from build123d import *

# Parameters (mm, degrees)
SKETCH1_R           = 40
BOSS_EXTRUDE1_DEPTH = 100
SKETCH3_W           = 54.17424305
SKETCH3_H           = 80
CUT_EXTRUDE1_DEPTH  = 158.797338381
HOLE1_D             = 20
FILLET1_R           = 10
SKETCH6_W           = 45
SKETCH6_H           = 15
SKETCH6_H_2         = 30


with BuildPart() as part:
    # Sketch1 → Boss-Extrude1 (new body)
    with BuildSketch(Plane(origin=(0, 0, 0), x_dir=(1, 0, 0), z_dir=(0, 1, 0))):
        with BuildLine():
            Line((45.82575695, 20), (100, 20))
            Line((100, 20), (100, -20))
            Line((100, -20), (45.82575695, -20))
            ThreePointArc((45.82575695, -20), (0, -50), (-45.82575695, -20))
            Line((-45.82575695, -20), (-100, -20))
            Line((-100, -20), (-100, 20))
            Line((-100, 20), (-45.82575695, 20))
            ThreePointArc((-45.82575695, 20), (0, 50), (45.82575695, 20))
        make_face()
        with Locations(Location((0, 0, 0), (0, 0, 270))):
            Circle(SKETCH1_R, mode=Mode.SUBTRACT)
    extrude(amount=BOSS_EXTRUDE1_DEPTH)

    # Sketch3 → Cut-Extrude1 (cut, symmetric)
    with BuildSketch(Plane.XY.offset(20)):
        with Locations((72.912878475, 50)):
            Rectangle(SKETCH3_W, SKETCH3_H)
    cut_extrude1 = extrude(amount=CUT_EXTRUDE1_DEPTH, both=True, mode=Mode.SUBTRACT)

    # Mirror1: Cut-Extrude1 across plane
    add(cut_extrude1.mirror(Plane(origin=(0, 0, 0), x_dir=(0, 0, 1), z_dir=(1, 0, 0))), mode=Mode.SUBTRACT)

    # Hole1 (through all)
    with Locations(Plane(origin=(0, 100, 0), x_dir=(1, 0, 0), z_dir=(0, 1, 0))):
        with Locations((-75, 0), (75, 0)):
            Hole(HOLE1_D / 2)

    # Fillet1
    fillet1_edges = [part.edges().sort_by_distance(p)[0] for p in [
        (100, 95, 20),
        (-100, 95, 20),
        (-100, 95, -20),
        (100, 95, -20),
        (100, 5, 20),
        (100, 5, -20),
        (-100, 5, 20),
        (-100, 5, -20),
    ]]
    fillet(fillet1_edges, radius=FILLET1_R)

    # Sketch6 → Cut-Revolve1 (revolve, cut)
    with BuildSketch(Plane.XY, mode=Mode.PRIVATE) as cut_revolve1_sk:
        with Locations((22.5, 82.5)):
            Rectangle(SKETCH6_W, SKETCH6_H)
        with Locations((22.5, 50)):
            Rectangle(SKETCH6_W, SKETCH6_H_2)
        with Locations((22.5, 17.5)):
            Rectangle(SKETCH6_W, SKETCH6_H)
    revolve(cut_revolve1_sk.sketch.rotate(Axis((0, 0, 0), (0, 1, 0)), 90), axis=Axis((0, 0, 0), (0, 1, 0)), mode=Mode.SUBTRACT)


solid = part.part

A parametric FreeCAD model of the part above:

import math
import FreeCAD as App
import Part
import Sketcher


def edges_at(feature, points):
    """Names of the edges that pass closest to the given points."""
    edges = feature.Shape.Edges
    near = lambda p: min(range(len(edges)), key=lambda i: edges[i].distToShape(Part.Vertex(*p))[0])
    return sorted({f"Edge{near(p) + 1}" for p in points})

doc = App.newDocument("Part")
params = doc.addObject("Spreadsheet::Sheet", "Params")
for row, (alias, value) in enumerate([
    ("sketch1_diameter", "80 mm"),
    ("sketch1_radius", "50 mm"),
    ("sketch1_height", "40 mm"),
    ("pad1_length", "100 mm"),
    ("sketch2_height", "80 mm"),
    ("pocket1_length", "317.594677 mm"),
    ("sketch3_diameter", "20 mm"),
    ("hole_diameter", "20 mm"),
    ("fillet_radius", "10 mm"),
    ("sketch4_width", "45 mm"),
    ("sketch4_height", "15 mm"),
    ("sketch4_height2", "30 mm"),
    ("groove_angle", "360 deg"),
], start=1):
    params.set(f"A{row}", alias)
    params.set(f"B{row}", "=" + value)
    params.setAlias(f"B{row}", alias)

body = doc.addObject("PartDesign::Body", "Body")

sketch1 = body.newObject("Sketcher::SketchObject", "Sketch")
sketch1.AttachmentSupport = (doc.getObject("XZ_Plane"), [""])
sketch1.MapMode = "FlatFace"
sketch1.addGeometry([
    Part.LineSegment(App.Vector(100, -20, 0), App.Vector(45.825757, -20, 0)),
    Part.ArcOfCircle(Part.Circle(App.Vector(0, 0, 0), App.Vector(0, 0, 1), 50), math.radians(-156.421822), math.radians(-23.578178)),
    Part.LineSegment(App.Vector(-45.825757, -20, 0), App.Vector(-100, -20, 0)),
    Part.LineSegment(App.Vector(-100, -20, 0), App.Vector(-100, 20, 0)),
    Part.LineSegment(App.Vector(-100, 20, 0), App.Vector(-45.825757, 20, 0)),
    Part.ArcOfCircle(Part.Circle(App.Vector(0, 0, 0), App.Vector(0, 0, 1), 50), math.radians(23.578178), math.radians(156.421822)),
    Part.LineSegment(App.Vector(45.825757, 20, 0), App.Vector(100, 20, 0)),
    Part.LineSegment(App.Vector(100, 20, 0), App.Vector(100, -20, 0)),
    Part.Circle(App.Vector(0, 0, 0), App.Vector(0, 0, 1), 40),
], False)
sketch1.addConstraint([
    Sketcher.Constraint("Coincident", 0, 2, 1, 2),
    Sketcher.Constraint("Coincident", 1, 1, 2, 1),
    Sketcher.Constraint("Coincident", 2, 2, 3, 1),
    Sketcher.Constraint("Coincident", 3, 2, 4, 1),
    Sketcher.Constraint("Coincident", 4, 2, 5, 2),
    Sketcher.Constraint("Coincident", 5, 1, 6, 1),
    Sketcher.Constraint("Coincident", 6, 2, 7, 1),
    Sketcher.Constraint("Coincident", 7, 2, 0, 1),
    Sketcher.Constraint("Horizontal", 0),
    Sketcher.Constraint("Horizontal", 2),
    Sketcher.Constraint("Vertical", 3),
    Sketcher.Constraint("Horizontal", 4),
    Sketcher.Constraint("Horizontal", 6),
    Sketcher.Constraint("Vertical", 7),
    Sketcher.Constraint("Coincident", 1, 3, -1, 1),
    Sketcher.Constraint("Coincident", 5, 3, -1, 1),
    Sketcher.Constraint("Coincident", 8, 3, -1, 1),
    Sketcher.Constraint("Equal", 1, 5),
    Sketcher.Constraint("Symmetric", 2, 2, 6, 2, -1, 1),
    Sketcher.Constraint("Horizontal", 0, 2, 1, 1),
    Sketcher.Constraint("Horizontal", 4, 2, 5, 1),
    Sketcher.Constraint("Diameter", 8, 80.0),
    Sketcher.Constraint("Radius", 1, 50.0),
    Sketcher.Constraint("DistanceY", 3, 1, 3, 2, 40.0),
    Sketcher.Constraint("DistanceX", 2, 2, -1, 1, 100.0),
])
sketch1.setExpression("Constraints[21]", "Params.sketch1_diameter")
sketch1.setExpression("Constraints[22]", "Params.sketch1_radius")
sketch1.setExpression("Constraints[23]", "Params.sketch1_height")
pad1 = body.newObject("PartDesign::Pad", "Pad")
pad1.Profile = sketch1
pad1.setExpression("Length", "Params.pad1_length")
pad1.Reversed = True

sketch2 = body.newObject("Sketcher::SketchObject", "Sketch001")
sketch2.AttachmentSupport = (doc.getObject("XY_Plane"), [""])
sketch2.MapMode = "FlatFace"
sketch2.AttachmentOffset = App.Placement(App.Vector(0, 0, 20), App.Rotation())
sketch2.addGeometry([
    Part.LineSegment(App.Vector(45.825757, 90, 0), App.Vector(45.825757, 10, 0)),
    Part.LineSegment(App.Vector(45.825757, 10, 0), App.Vector(100, 10, 0)),
    Part.LineSegment(App.Vector(100, 10, 0), App.Vector(100, 90, 0)),
    Part.LineSegment(App.Vector(100, 90, 0), App.Vector(45.825757, 90, 0)),
], False)
sketch2.addConstraint([
    Sketcher.Constraint("Coincident", 0, 2, 1, 1),
    Sketcher.Constraint("Coincident", 1, 2, 2, 1),
    Sketcher.Constraint("Coincident", 2, 2, 3, 1),
    Sketcher.Constraint("Coincident", 3, 2, 0, 1),
    Sketcher.Constraint("Vertical", 0),
    Sketcher.Constraint("Horizontal", 1),
    Sketcher.Constraint("Vertical", 2),
    Sketcher.Constraint("Horizontal", 3),
    Sketcher.Constraint("DistanceY", 0, 2, 0, 1, 80.0),
    Sketcher.Constraint("DistanceY", -1, 1, 0, 2, 10.0),
    Sketcher.Constraint("DistanceX", -1, 1, 1, 2, 100.0),
    Sketcher.Constraint("DistanceX", 1, 1, 1, 2, 54.174243),
])
sketch2.setExpression("Constraints[8]", "Params.sketch2_height")
pocket1 = body.newObject("PartDesign::Pocket", "Pocket")
pocket1.Profile = sketch2
pocket1.setExpression("Length", "Params.pocket1_length")
pocket1.Midplane = True
doc.recompute()

mirrored = body.newObject("PartDesign::Mirrored", "Mirrored")
mirrored.Originals = [pocket1]
mirrored.MirrorPlane = (doc.getObject("YZ_Plane"), [""])
body.Tip = mirrored

sketch3 = body.newObject("Sketcher::SketchObject", "Sketch002")
sketch3.AttachmentSupport = (doc.getObject("XZ_Plane"), [""])
sketch3.MapMode = "FlatFace"
sketch3.AttachmentOffset = App.Placement(App.Vector(0, 0, -100), App.Rotation())
sketch3.addGeometry([
    Part.Circle(App.Vector(-75, 0, 0), App.Vector(0, 0, 1), 10),
    Part.Circle(App.Vector(75, 0, 0), App.Vector(0, 0, 1), 10),
], False)
sketch3.addConstraint([
    Sketcher.Constraint("Equal", 0, 1),
    Sketcher.Constraint("Symmetric", 0, 3, 1, 3, -1, 1),
    Sketcher.Constraint("PointOnObject", 0, 3, -1),
    Sketcher.Constraint("Diameter", 0, 20.0),
    Sketcher.Constraint("DistanceX", 0, 3, -1, 1, 75.0),
])
sketch3.setExpression("Constraints[3]", "Params.sketch3_diameter")
doc.recompute()
hole = body.newObject("PartDesign::Hole", "Hole")
hole.Profile = sketch3
hole.ThreadType = "None"
hole.setExpression("Diameter", "Params.hole_diameter")
hole.DepthType = "ThroughAll"
hole.Reversed = True
doc.recompute()

fillet = body.newObject("PartDesign::Fillet", "Fillet")
fillet.Base = (hole, edges_at(hole, [
    (100, 95, 20),
    (-100, 95, 20),
    (-100, 95, -20),
    (100, 95, -20),
    (100, 5, 20),
    (100, 5, -20),
    (-100, 5, 20),
    (-100, 5, -20),
]))
fillet.setExpression("Radius", "Params.fillet_radius")

sketch4 = body.newObject("Sketcher::SketchObject", "Sketch003")
sketch4.AttachmentSupport = (doc.getObject("XY_Plane"), [""])
sketch4.MapMode = "FlatFace"
sketch4.addGeometry([
    Part.LineSegment(App.Vector(0, 90, 0), App.Vector(0, 75, 0)),
    Part.LineSegment(App.Vector(0, 75, 0), App.Vector(45, 75, 0)),
    Part.LineSegment(App.Vector(45, 75, 0), App.Vector(45, 90, 0)),
    Part.LineSegment(App.Vector(45, 90, 0), App.Vector(0, 90, 0)),
    Part.LineSegment(App.Vector(0, 65, 0), App.Vector(0, 35, 0)),
    Part.LineSegment(App.Vector(0, 35, 0), App.Vector(45, 35, 0)),
    Part.LineSegment(App.Vector(45, 35, 0), App.Vector(45, 65, 0)),
    Part.LineSegment(App.Vector(45, 65, 0), App.Vector(0, 65, 0)),
    Part.LineSegment(App.Vector(0, 25, 0), App.Vector(0, 10, 0)),
    Part.LineSegment(App.Vector(0, 10, 0), App.Vector(45, 10, 0)),
    Part.LineSegment(App.Vector(45, 10, 0), App.Vector(45, 25, 0)),
    Part.LineSegment(App.Vector(45, 25, 0), App.Vector(0, 25, 0)),
], False)
sketch4.addConstraint([
    Sketcher.Constraint("Coincident", 0, 2, 1, 1),
    Sketcher.Constraint("Coincident", 1, 2, 2, 1),
    Sketcher.Constraint("Coincident", 2, 2, 3, 1),
    Sketcher.Constraint("Coincident", 3, 2, 0, 1),
    Sketcher.Constraint("Coincident", 4, 2, 5, 1),
    Sketcher.Constraint("Coincident", 5, 2, 6, 1),
    Sketcher.Constraint("Coincident", 6, 2, 7, 1),
    Sketcher.Constraint("Coincident", 7, 2, 4, 1),
    Sketcher.Constraint("Coincident", 8, 2, 9, 1),
    Sketcher.Constraint("Coincident", 9, 2, 10, 1),
    Sketcher.Constraint("Coincident", 10, 2, 11, 1),
    Sketcher.Constraint("Coincident", 11, 2, 8, 1),
    Sketcher.Constraint("Vertical", 0),
    Sketcher.Constraint("Horizontal", 1),
    Sketcher.Constraint("Vertical", 2),
    Sketcher.Constraint("Horizontal", 3),
    Sketcher.Constraint("Vertical", 4),
    Sketcher.Constraint("Horizontal", 5),
    Sketcher.Constraint("Vertical", 6),
    Sketcher.Constraint("Horizontal", 7),
    Sketcher.Constraint("Vertical", 8),
    Sketcher.Constraint("Horizontal", 9),
    Sketcher.Constraint("Vertical", 10),
    Sketcher.Constraint("Horizontal", 11),
    Sketcher.Constraint("PointOnObject", 0, 2, -2),
    Sketcher.Constraint("PointOnObject", 4, 2, -2),
    Sketcher.Constraint("PointOnObject", 8, 2, -2),
    Sketcher.Constraint("Vertical", 2, 2, 5, 2),
    Sketcher.Constraint("Vertical", 6, 2, 9, 2),
    Sketcher.Constraint("Equal", 2, 8),
    Sketcher.Constraint("DistanceX", 1, 1, 1, 2, 45.0),
    Sketcher.Constraint("DistanceY", 0, 2, 0, 1, 15.0),
    Sketcher.Constraint("DistanceY", 4, 2, 4, 1, 30.0),
    Sketcher.Constraint("DistanceY", -1, 1, 0, 2, 75.0),
    Sketcher.Constraint("DistanceY", -1, 1, 4, 2, 35.0),
    Sketcher.Constraint("DistanceY", -1, 1, 8, 2, 10.0),
])
sketch4.setExpression("Constraints[30]", "Params.sketch4_width")
sketch4.setExpression("Constraints[31]", "Params.sketch4_height")
sketch4.setExpression("Constraints[32]", "Params.sketch4_height2")
groove = body.newObject("PartDesign::Groove", "Groove")
groove.Profile = sketch4
groove.ReferenceAxis = (sketch4, ["V_Axis"])
groove.setExpression("Angle", "Params.groove_angle")

doc.recompute()
